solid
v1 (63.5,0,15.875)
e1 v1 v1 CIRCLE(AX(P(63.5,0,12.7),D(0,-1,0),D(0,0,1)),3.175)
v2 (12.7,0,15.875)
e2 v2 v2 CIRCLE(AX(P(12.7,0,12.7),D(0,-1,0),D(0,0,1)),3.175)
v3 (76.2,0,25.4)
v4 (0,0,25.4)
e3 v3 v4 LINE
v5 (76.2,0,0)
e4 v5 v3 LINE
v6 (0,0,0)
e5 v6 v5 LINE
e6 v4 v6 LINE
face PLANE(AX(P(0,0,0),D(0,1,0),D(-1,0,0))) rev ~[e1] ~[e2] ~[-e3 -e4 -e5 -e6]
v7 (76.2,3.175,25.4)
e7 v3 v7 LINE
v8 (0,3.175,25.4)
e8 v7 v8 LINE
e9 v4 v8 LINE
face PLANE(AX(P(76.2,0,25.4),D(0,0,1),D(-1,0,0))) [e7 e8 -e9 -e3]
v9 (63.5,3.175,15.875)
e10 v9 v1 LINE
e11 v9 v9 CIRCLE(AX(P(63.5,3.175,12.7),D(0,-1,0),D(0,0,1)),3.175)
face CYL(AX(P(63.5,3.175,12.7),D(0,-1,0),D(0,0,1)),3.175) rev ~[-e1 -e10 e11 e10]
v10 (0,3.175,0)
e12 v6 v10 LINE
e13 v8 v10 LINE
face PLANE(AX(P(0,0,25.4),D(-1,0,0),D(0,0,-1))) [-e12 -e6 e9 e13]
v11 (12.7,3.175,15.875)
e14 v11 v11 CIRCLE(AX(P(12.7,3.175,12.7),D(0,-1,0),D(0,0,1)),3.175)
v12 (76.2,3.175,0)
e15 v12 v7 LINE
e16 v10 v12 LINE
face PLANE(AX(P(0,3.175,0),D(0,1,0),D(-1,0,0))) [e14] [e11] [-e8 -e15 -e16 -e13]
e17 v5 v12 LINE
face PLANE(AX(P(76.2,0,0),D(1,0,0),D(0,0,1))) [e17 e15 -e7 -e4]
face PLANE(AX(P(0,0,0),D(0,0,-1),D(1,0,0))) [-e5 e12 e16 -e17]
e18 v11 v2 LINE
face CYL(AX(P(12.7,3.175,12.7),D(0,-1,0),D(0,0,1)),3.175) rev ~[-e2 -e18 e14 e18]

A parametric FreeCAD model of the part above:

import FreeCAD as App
import Part
import Sketcher

V = App.Vector
Q = App.Units.Quantity


def add_polygon(sketch, points):
    """Adds a closed chain of lines whose ends are joined by coincident constraints."""
    first, n = sketch.GeometryCount, len(points)
    for a, b in zip(points, points[1:] + points[:1]):
        sketch.addGeometry(Part.LineSegment(App.Vector(*a, 0), App.Vector(*b, 0)), False)
    for i in range(n):
        sketch.addConstraint(Sketcher.Constraint("Coincident", first + i, 2, first + (i + 1) % n, 1))

doc = App.newDocument("Part")
params = doc.addObject("Spreadsheet::Sheet", "Params")
for row, (alias, value) in enumerate([
    ("sketch1_width", "3 in"),
    ("sketch1_height", "1 in"),
    ("pad1_length", "0.125 in"),
    ("sketch2_diameter", "0.25 in"),
    ("hole_diameter", "0.25 in"),
], start=1):
    params.set(f"A{row}", alias)
    params.set(f"B{row}", "=" + value)
    params.setAlias(f"B{row}", alias)

body = doc.addObject("PartDesign::Body", "Body")

sketch1 = body.newObject("Sketcher::SketchObject", "Sketch")
sketch1.AttachmentSupport = (doc.getObject("XZ_Plane"), [""])
sketch1.MapMode = "FlatFace"
add_polygon(sketch1, [(76.2, 0), (0, 0), (0, 25.4), (76.2, 25.4)])
sketch1.addConstraint([
    Sketcher.Constraint("Horizontal", 0),
    Sketcher.Constraint("Vertical", 1),
    Sketcher.Constraint("Horizontal", 2),
    Sketcher.Constraint("Vertical", 3),
    Sketcher.Constraint("Coincident", 0, 2, -1, 1),
    Sketcher.Constraint("DistanceX", 0, 2, 0, 1, Q("3 in")),
    Sketcher.Constraint("DistanceY", 1, 1, 1, 2, Q("1 in")),
])
sketch1.setExpression("Constraints[9]", "Params.sketch1_width")
sketch1.setExpression("Constraints[10]", "Params.sketch1_height")
pad1 = body.newObject("PartDesign::Pad", "Pad")
pad1.Profile = sketch1
pad1.setExpression("Length", "Params.pad1_length")
pad1.Reversed = True

sketch2 = body.newObject("Sketcher::SketchObject", "Sketch001")
sketch2.AttachmentSupport = (doc.getObject("XZ_Plane"), [""])
sketch2.MapMode = "FlatFace"
sketch2.AttachmentOffset = App.Placement(V(0, 0, -0.125 * 25.4), App.Rotation())
sketch2.addGeometry([
    Part.Circle(V(12.7, 12.7, 0), V(0, 0, 1), 3.175),
    Part.Circle(V(63.5, 12.7, 0), V(0, 0, 1), 3.175),
], False)
sketch2.addConstraint([
    Sketcher.Constraint("Equal", 0, 1),
    Sketcher.Constraint("Horizontal", 0, 3, 1, 3),
    Sketcher.Constraint("Diameter", 0, Q("0.25 in")),
    Sketcher.Constraint("DistanceX", 0, 3, 1, 3, Q("2 in")),
    Sketcher.Constraint("DistanceX", -1, 1, 0, 3, Q("0.5 in")),
    Sketcher.Constraint("DistanceY", -1, 1, 0, 3, Q("0.5 in")),
])
sketch2.setExpression("Constraints[2]", "Params.sketch2_diameter")
doc.recompute()
hole = body.newObject("PartDesign::Hole", "Hole")
hole.Profile = sketch2
hole.ThreadType = "None"
hole.setExpression("Diameter", "Params.hole_diameter")
hole.DepthType = "ThroughAll"
hole.Reversed = True

doc.recompute()
